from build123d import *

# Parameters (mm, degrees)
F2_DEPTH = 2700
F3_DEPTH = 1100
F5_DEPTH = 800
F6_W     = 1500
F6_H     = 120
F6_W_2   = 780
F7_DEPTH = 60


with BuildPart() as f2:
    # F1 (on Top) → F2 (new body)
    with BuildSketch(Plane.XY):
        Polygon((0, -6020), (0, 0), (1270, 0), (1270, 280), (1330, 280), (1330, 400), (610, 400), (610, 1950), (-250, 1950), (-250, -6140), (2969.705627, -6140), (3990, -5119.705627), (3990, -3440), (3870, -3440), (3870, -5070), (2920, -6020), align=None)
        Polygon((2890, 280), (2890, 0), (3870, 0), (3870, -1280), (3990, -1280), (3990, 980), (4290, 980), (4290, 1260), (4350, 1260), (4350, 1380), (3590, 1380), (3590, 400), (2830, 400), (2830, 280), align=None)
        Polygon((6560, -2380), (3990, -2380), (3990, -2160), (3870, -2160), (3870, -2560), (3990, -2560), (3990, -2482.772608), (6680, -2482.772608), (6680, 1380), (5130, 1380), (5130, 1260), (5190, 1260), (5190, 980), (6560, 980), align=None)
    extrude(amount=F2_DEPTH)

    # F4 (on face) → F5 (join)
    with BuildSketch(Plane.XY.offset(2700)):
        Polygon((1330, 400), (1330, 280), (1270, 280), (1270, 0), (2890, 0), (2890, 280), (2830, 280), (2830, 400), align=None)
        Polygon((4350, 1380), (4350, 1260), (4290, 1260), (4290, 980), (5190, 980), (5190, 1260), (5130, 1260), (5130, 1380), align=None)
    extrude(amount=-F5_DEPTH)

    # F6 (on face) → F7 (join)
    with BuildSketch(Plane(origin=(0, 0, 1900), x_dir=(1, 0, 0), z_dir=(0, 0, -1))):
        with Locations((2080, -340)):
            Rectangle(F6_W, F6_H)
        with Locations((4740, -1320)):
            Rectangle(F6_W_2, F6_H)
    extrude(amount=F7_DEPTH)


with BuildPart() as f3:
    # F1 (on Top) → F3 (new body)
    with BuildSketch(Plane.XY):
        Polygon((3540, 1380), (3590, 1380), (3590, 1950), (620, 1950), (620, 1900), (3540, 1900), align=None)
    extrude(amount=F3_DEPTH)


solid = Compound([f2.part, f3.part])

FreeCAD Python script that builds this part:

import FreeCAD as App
import Part
import Sketcher

V = App.Vector
Q = App.Units.Quantity

doc = App.newDocument("Part")
params = doc.addObject("Spreadsheet::Sheet", "Params")
for row, (alias, value) in enumerate([
    ("sketch1_width", "1270 mm"),
    ("sketch1_width2", "60 mm"),
    ("sketch1_width3", "720 mm"),
    ("sketch1_width4", "860 mm"),
    ("sketch1_width5", "120 mm"),
    ("pad1_length", "2700 mm"),
    ("sketch2_width", "60 mm"),
    ("sketch2_width2", "1620 mm"),
    ("sketch2_width3", "900 mm"),
    ("sketch2_height", "120 mm"),
    ("sketch2_height2", "280 mm"),
    ("pad2_length", "800 mm"),
    ("sketch3_width", "1500 mm"),
    ("sketch3_width2", "780 mm"),
    ("sketch3_height", "120 mm"),
    ("pad3_length", "60 mm"),
    ("sketch4_width", "50 mm"),
    ("sketch4_width2", "2970 mm"),
    ("sketch4_height", "570 mm"),
    ("pad4_length", "1100 mm"),
], start=1):
    params.set(f"A{row}", alias)
    params.set(f"B{row}", "=" + value)
    params.setAlias(f"B{row}", alias)

body = doc.addObject("PartDesign::Body", "Body")
body.AllowCompound = True

# Sketch on XY plane
sketch1 = doc.addObject("Sketcher::SketchObject", "Sketch")
body.addObject(sketch1)
sketch1.AttachmentSupport = (doc.XY_Plane, [""])
sketch1.MapMode = "FlatFace"
sketch1.addGeometry([
    Part.LineSegment(V(0, -6020, 0), V(0, 0, 0)),  # 0
    Part.LineSegment(V(0, 0, 0), V(1270, 0, 0)),  # 1
    Part.LineSegment(V(1270, 0, 0), V(1270, 280, 0)),  # 2
    Part.LineSegment(V(1270, 280, 0), V(1330, 280, 0)),  # 3
    Part.LineSegment(V(1330, 280, 0), V(1330, 400, 0)),  # 4
    Part.LineSegment(V(1330, 400, 0), V(610, 400, 0)),  # 5
    Part.LineSegment(V(610, 400, 0), V(610, 1950, 0)),  # 6
    Part.LineSegment(V(610, 1950, 0), V(-250, 1950, 0)),  # 7
    Part.LineSegment(V(-250, 1950, 0), V(-250, -6140, 0)),  # 8
    Part.LineSegment(V(-250, -6140, 0), V(2969.705627, -6140, 0)),  # 9
    Part.LineSegment(V(2969.705627, -6140, 0), V(3990, -5119.705627, 0)),  # 10
    Part.LineSegment(V(3990, -5119.705627, 0), V(3990, -3440, 0)),  # 11
    Part.LineSegment(V(3990, -3440, 0), V(3870, -3440, 0)),  # 12
    Part.LineSegment(V(3870, -3440, 0), V(3870, -5070, 0)),  # 13
    Part.LineSegment(V(3870, -5070, 0), V(2920, -6020, 0)),  # 14
    Part.LineSegment(V(2920, -6020, 0), V(0, -6020, 0)),  # 15
    Part.LineSegment(V(2890, 280, 0), V(2890, 0, 0)),  # 16
    Part.LineSegment(V(2890, 0, 0), V(3870, 0, 0)),  # 17
    Part.LineSegment(V(3870, 0, 0), V(3870, -1280, 0)),  # 18
    Part.LineSegment(V(3870, -1280, 0), V(3990, -1280, 0)),  # 19
    Part.LineSegment(V(3990, -1280, 0), V(3990, 980, 0)),  # 20
    Part.LineSegment(V(3990, 980, 0), V(4290, 980, 0)),  # 21
    Part.LineSegment(V(4290, 980, 0), V(4290, 1260, 0)),  # 22
    Part.LineSegment(V(4290, 1260, 0), V(4350, 1260, 0)),  # 23
    Part.LineSegment(V(4350, 1260, 0), V(4350, 1380, 0)),  # 24
    Part.LineSegment(V(4350, 1380, 0), V(3590, 1380, 0)),  # 25
    Part.LineSegment(V(3590, 1380, 0), V(3590, 400, 0)),  # 26
    Part.LineSegment(V(3590, 400, 0), V(2830, 400, 0)),  # 27
    Part.LineSegment(V(2830, 400, 0), V(2830, 280, 0)),  # 28
    Part.LineSegment(V(2830, 280, 0), V(2890, 280, 0)),  # 29
    Part.LineSegment(V(6560, -2380, 0), V(3990, -2380, 0)),  # 30
    Part.LineSegment(V(3990, -2380, 0), V(3990, -2160, 0)),  # 31
    Part.LineSegment(V(3990, -2160, 0), V(3870, -2160, 0)),  # 32
    Part.LineSegment(V(3870, -2160, 0), V(3870, -2560, 0)),  # 33
    Part.LineSegment(V(3870, -2560, 0), V(3990, -2560, 0)),  # 34
    Part.LineSegment(V(3990, -2560, 0), V(3990, -2482.772608, 0)),  # 35
    Part.LineSegment(V(3990, -2482.772608, 0), V(6680, -2482.772608, 0)),  # 36
    Part.LineSegment(V(6680, -2482.772608, 0), V(6680, 1380, 0)),  # 37
    Part.LineSegment(V(6680, 1380, 0), V(5130, 1380, 0)),  # 38
    Part.LineSegment(V(5130, 1380, 0), V(5130, 1260, 0)),  # 39
    Part.LineSegment(V(5130, 1260, 0), V(5190, 1260, 0)),  # 40
    Part.LineSegment(V(5190, 1260, 0), V(5190, 980, 0)),  # 41
    Part.LineSegment(V(5190, 980, 0), V(6560, 980, 0)),  # 42
    Part.LineSegment(V(6560, 980, 0), V(6560, -2380, 0)),  # 43
], False)
sketch1.addConstraint([
    Sketcher.Constraint("Coincident", 0, 2, 1, 1),
    Sketcher.Constraint("Coincident", 1, 2, 2, 1),
    Sketcher.Constraint("Coincident", 2, 2, 3, 1),
    Sketcher.Constraint("Coincident", 3, 2, 4, 1),
    Sketcher.Constraint("Coincident", 4, 2, 5, 1),
    Sketcher.Constraint("Coincident", 5, 2, 6, 1),
    Sketcher.Constraint("Coincident", 6, 2, 7, 1),
    Sketcher.Constraint("Coincident", 7, 2, 8, 1),
    Sketcher.Constraint("Coincident", 8, 2, 9, 1),
    Sketcher.Constraint("Coincident", 9, 2, 10, 1),
    Sketcher.Constraint("Coincident", 10, 2, 11, 1),
    Sketcher.Constraint("Coincident", 11, 2, 12, 1),
    Sketcher.Constraint("Coincident", 12, 2, 13, 1),
    Sketcher.Constraint("Coincident", 13, 2, 14, 1),
    Sketcher.Constraint("Coincident", 14, 2, 15, 1),
    Sketcher.Constraint("Coincident", 15, 2, 0, 1),
    Sketcher.Constraint("Coincident", 16, 2, 17, 1),
    Sketcher.Constraint("Coincident", 17, 2, 18, 1),
    Sketcher.Constraint("Coincident", 18, 2, 19, 1),
    Sketcher.Constraint("Coincident", 19, 2, 20, 1),
    Sketcher.Constraint("Coincident", 20, 2, 21, 1),
    Sketcher.Constraint("Coincident", 21, 2, 22, 1),
    Sketcher.Constraint("Coincident", 22, 2, 23, 1),
    Sketcher.Constraint("Coincident", 23, 2, 24, 1),
    Sketcher.Constraint("Coincident", 24, 2, 25, 1),
    Sketcher.Constraint("Coincident", 25, 2, 26, 1),
    Sketcher.Constraint("Coincident", 26, 2, 27, 1),
    Sketcher.Constraint("Coincident", 27, 2, 28, 1),
    Sketcher.Constraint("Coincident", 28, 2, 29, 1),
    Sketcher.Constraint("Coincident", 29, 2, 16, 1),
    Sketcher.Constraint("Coincident", 30, 2, 31, 1),
    Sketcher.Constraint("Coincident", 31, 2, 32, 1),
    Sketcher.Constraint("Coincident", 32, 2, 33, 1),
    Sketcher.Constraint("Coincident", 33, 2, 34, 1),
    Sketcher.Constraint("Coincident", 34, 2, 35, 1),
    Sketcher.Constraint("Coincident", 35, 2, 36, 1),
    Sketcher.Constraint("Coincident", 36, 2, 37, 1),
    Sketcher.Constraint("Coincident", 37, 2, 38, 1),
    Sketcher.Constraint("Coincident", 38, 2, 39, 1),
    Sketcher.Constraint("Coincident", 39, 2, 40, 1),
    Sketcher.Constraint("Coincident", 40, 2, 41, 1),
    Sketcher.Constraint("Coincident", 41, 2, 42, 1),
    Sketcher.Constraint("Coincident", 42, 2, 43, 1),
    Sketcher.Constraint("Coincident", 43, 2, 30, 1),
    Sketcher.Constraint("Vertical", 0),
    Sketcher.Constraint("Horizontal", 1),
    Sketcher.Constraint("Vertical", 2),
    Sketcher.Constraint("Horizontal", 3),
    Sketcher.Constraint("Vertical", 4),
    Sketcher.Constraint("Horizontal", 5),
    Sketcher.Constraint("Vertical", 6),
    Sketcher.Constraint("Horizontal", 7),
    Sketcher.Constraint("Vertical", 8),
    Sketcher.Constraint("Horizontal", 9),
    Sketcher.Constraint("Vertical", 11),
    Sketcher.Constraint("Horizontal", 12),
    Sketcher.Constraint("Vertical", 13),
    Sketcher.Constraint("Horizontal", 15),
    Sketcher.Constraint("Vertical", 16),
    Sketcher.Constraint("Horizontal", 17),
    Sketcher.Constraint("Vertical", 18),
    Sketcher.Constraint("Horizontal", 19),
    Sketcher.Constraint("Vertical", 20),
    Sketcher.Constraint("Horizontal", 21),
    Sketcher.Constraint("Vertical", 22),
    Sketcher.Constraint("Horizontal", 23),
    Sketcher.Constraint("Vertical", 24),
    Sketcher.Constraint("Horizontal", 25),
    Sketcher.Constraint("Vertical", 26),
    Sketcher.Constraint("Horizontal", 27),
    Sketcher.Constraint("Vertical", 28),
    Sketcher.Constraint("Horizontal", 29),
    Sketcher.Constraint("Horizontal", 30),
    Sketcher.Constraint("Vertical", 31),
    Sketcher.Constraint("Horizontal", 32),
    Sketcher.Constraint("Vertical", 33),
    Sketcher.Constraint("Horizontal", 34),
    Sketcher.Constraint("Vertical", 35),
    Sketcher.Constraint("Horizontal", 36),
    Sketcher.Constraint("Vertical", 37),
    Sketcher.Constraint("Horizontal", 38),
    Sketcher.Constraint("Vertical", 39),
    Sketcher.Constraint("Horizontal", 40),
    Sketcher.Constraint("Vertical", 41),
    Sketcher.Constraint("Horizontal", 42),
    Sketcher.Constraint("Vertical", 43),
    Sketcher.Constraint("Coincident", 0, 2, -1, 1),
    Sketcher.Constraint("PointOnObject", 16, 2, -1),
    Sketcher.Constraint("Parallel", 10, 14),
    Sketcher.Constraint("Horizontal", 5, 2, 26, 2),
    Sketcher.Constraint("Horizontal", 3, 2, 28, 2),
    Sketcher.Constraint("Horizontal", 25, 2, 37, 2),
    Sketcher.Constraint("Horizontal", 23, 2, 39, 2),
    Sketcher.Constraint("Horizontal", 21, 2, 41, 2),
    Sketcher.Constraint("Vertical", 13, 2, 17, 2),
    Sketcher.Constraint("Vertical", 11, 2, 19, 2),
    Sketcher.Constraint("Vertical", 20, 2, 30, 2),
    Sketcher.Constraint("Vertical", 18, 2, 32, 2),
    Sketcher.Constraint("Vertical", 31, 2, 34, 2),
    Sketcher.Constraint("Equal", 3, 23),
    Sketcher.Constraint("Equal", 25, 27),
    Sketcher.Constraint("Equal", 23, 29),
    Sketcher.Constraint("Equal", 29, 40),
    Sketcher.Constraint("Equal", 34, 4),
    Sketcher.Constraint("Equal", 38, 6),
    Sketcher.Constraint("Equal", 16, 22),
    Sketcher.Constraint("Equal", 4, 24),
    Sketcher.Constraint("Equal", 17, 26),
    Sketcher.Constraint("DistanceX", 1, 1, 1, 2, Q("1270 mm")),
    Sketcher.Constraint("DistanceX", 3, 1, 3, 2, Q("60 mm")),
    Sketcher.Constraint("DistanceX", 5, 2, 5, 1, Q("720 mm")),
    Sketcher.Constraint("DistanceX", 7, 2, 7, 1, Q("860 mm")),
    Sketcher.Constraint("DistanceX", 12, 2, 12, 1, Q("120 mm")),
    Sketcher.Constraint("DistanceX", 15, 2, 15, 1, Q("2920 mm")),
    Sketcher.Constraint("DistanceX", 17, 1, 17, 2, Q("980 mm")),
    Sketcher.Constraint("DistanceX", 21, 1, 21, 2, Q("300 mm")),
    Sketcher.Constraint("DistanceX", 30, 2, 30, 1, Q("2570 mm")),
    Sketcher.Constraint("DistanceX", 36, 1, 36, 2, Q("2690 mm")),
    Sketcher.Constraint("DistanceX", 38, 2, 38, 1, Q("1550 mm")),
    Sketcher.Constraint("DistanceY", 0, 1, 0, 2, Q("6020 mm")),
    Sketcher.Constraint("DistanceY", 2, 1, 2, 2, Q("280 mm")),
    Sketcher.Constraint("DistanceY", 8, 2, 8, 1, Q("8090 mm")),
    Sketcher.Constraint("DistanceY", 13, 2, 13, 1, Q("1630 mm")),
    Sketcher.Constraint("DistanceY", 18, 2, 18, 1, Q("1280 mm")),
    Sketcher.Constraint("DistanceY", 31, 1, 31, 2, Q("220 mm")),
    Sketcher.Constraint("DistanceY", 33, 2, 33, 1, Q("400 mm")),
    Sketcher.Constraint("DistanceY", 43, 2, 43, 1, Q("3360 mm")),
    Sketcher.Constraint("Angle", 10, Q("45 deg")),
    Sketcher.Constraint("DistanceX", -1, 1, 10, 2, Q("3990 mm")),
    Sketcher.Constraint("DistanceY", 35, 1, 35, 2, Q("77.227392 mm")),
    Sketcher.Constraint("Distance", 10, Q("1442.91414 mm")),
])
sketch1.setExpression("Constraints[108]", "Params.sketch1_width")
sketch1.setExpression("Constraints[109]", "Params.sketch1_width2")
sketch1.setExpression("Constraints[110]", "Params.sketch1_width3")
sketch1.setExpression("Constraints[111]", "Params.sketch1_width4")
sketch1.setExpression("Constraints[112]", "Params.sketch1_width5")
pad1 = doc.addObject("PartDesign::Pad", "Pad")
body.addObject(pad1)
pad1.Profile = sketch1
pad1.setExpression("Length", "Params.pad1_length")

# Sketch on XY plane
sketch2 = doc.addObject("Sketcher::SketchObject", "Sketch001")
body.addObject(sketch2)
sketch2.AttachmentSupport = (doc.XY_Plane, [""])
sketch2.MapMode = "FlatFace"
sketch2.AttachmentOffset = App.Placement(V(0, 0, 2700), App.Rotation())
sketch2.addGeometry([
    Part.LineSegment(V(1330, 400, 0), V(1330, 280, 0)),  # 0
    Part.LineSegment(V(1330, 280, 0), V(1270, 280, 0)),  # 1
    Part.LineSegment(V(1270, 280, 0), V(1270, 0, 0)),  # 2
    Part.LineSegment(V(1270, 0, 0), V(2890, 0, 0)),  # 3
    Part.LineSegment(V(2890, 0, 0), V(2890, 280, 0)),  # 4
    Part.LineSegment(V(2890, 280, 0), V(2830, 280, 0)),  # 5
    Part.LineSegment(V(2830, 280, 0), V(2830, 400, 0)),  # 6
    Part.LineSegment(V(2830, 400, 0), V(1330, 400, 0)),  # 7
    Part.LineSegment(V(4350, 1380, 0), V(4350, 1260, 0)),  # 8
    Part.LineSegment(V(4350, 1260, 0), V(4290, 1260, 0)),  # 9
    Part.LineSegment(V(4290, 1260, 0), V(4290, 980, 0)),  # 10
    Part.LineSegment(V(4290, 980, 0), V(5190, 980, 0)),  # 11
    Part.LineSegment(V(5190, 980, 0), V(5190, 1260, 0)),  # 12
    Part.LineSegment(V(5190, 1260, 0), V(5130, 1260, 0)),  # 13
    Part.LineSegment(V(5130, 1260, 0), V(5130, 1380, 0)),  # 14
    Part.LineSegment(V(5130, 1380, 0), V(4350, 1380, 0)),  # 15
], False)
sketch2.addConstraint([
    Sketcher.Constraint("Coincident", 0, 2, 1, 1),
    Sketcher.Constraint("Coincident", 1, 2, 2, 1),
    Sketcher.Constraint("Coincident", 2, 2, 3, 1),
    Sketcher.Constraint("Coincident", 3, 2, 4, 1),
    Sketcher.Constraint("Coincident", 4, 2, 5, 1),
    Sketcher.Constraint("Coincident", 5, 2, 6, 1),
    Sketcher.Constraint("Coincident", 6, 2, 7, 1),
    Sketcher.Constraint("Coincident", 7, 2, 0, 1),
    Sketcher.Constraint("Coincident", 8, 2, 9, 1),
    Sketcher.Constraint("Coincident", 9, 2, 10, 1),
    Sketcher.Constraint("Coincident", 10, 2, 11, 1),
    Sketcher.Constraint("Coincident", 11, 2, 12, 1),
    Sketcher.Constraint("Coincident", 12, 2, 13, 1),
    Sketcher.Constraint("Coincident", 13, 2, 14, 1),
    Sketcher.Constraint("Coincident", 14, 2, 15, 1),
    Sketcher.Constraint("Coincident", 15, 2, 8, 1),
    Sketcher.Constraint("Vertical", 0),
    Sketcher.Constraint("Horizontal", 1),
    Sketcher.Constraint("Vertical", 2),
    Sketcher.Constraint("Horizontal", 3),
    Sketcher.Constraint("Vertical", 4),
    Sketcher.Constraint("Horizontal", 5),
    Sketcher.Constraint("Vertical", 6),
    Sketcher.Constraint("Horizontal", 7),
    Sketcher.Constraint("Vertical", 8),
    Sketcher.Constraint("Horizontal", 9),
    Sketcher.Constraint("Vertical", 10),
    Sketcher.Constraint("Horizontal", 11),
    Sketcher.Constraint("Vertical", 12),
    Sketcher.Constraint("Horizontal", 13),
    Sketcher.Constraint("Vertical", 14),
    Sketcher.Constraint("Horizontal", 15),
    Sketcher.Constraint("PointOnObject", 2, 2, -1),
    Sketcher.Constraint("Horizontal", 1, 2, 4, 2),
    Sketcher.Constraint("Horizontal", 9, 2, 12, 2),
    Sketcher.Constraint("Equal", 1, 5),
    Sketcher.Constraint("Equal", 5, 9),
    Sketcher.Constraint("Equal", 9, 13),
    Sketcher.Constraint("Equal", 6, 8),
    Sketcher.Constraint("Equal", 4, 10),
    Sketcher.Constraint("DistanceX", 1, 2, 1, 1, Q("60 mm")),
    Sketcher.Constraint("DistanceX", 3, 1, 3, 2, Q("1620 mm")),
    Sketcher.Constraint("DistanceX", 11, 1, 11, 2, Q("900 mm")),
    Sketcher.Constraint("DistanceY", 0, 2, 0, 1, Q("120 mm")),
    Sketcher.Constraint("DistanceY", 2, 2, 2, 1, Q("280 mm")),
    Sketcher.Constraint("DistanceX", -1, 1, 0, 2, Q("1330 mm")),
    Sketcher.Constraint("DistanceX", -1, 1, 8, 2, Q("4350 mm")),
    Sketcher.Constraint("DistanceY", -1, 1, 8, 2, Q("1260 mm")),
])
sketch2.setExpression("Constraints[40]", "Params.sketch2_width")
sketch2.setExpression("Constraints[41]", "Params.sketch2_width2")
sketch2.setExpression("Constraints[42]", "Params.sketch2_width3")
sketch2.setExpression("Constraints[43]", "Params.sketch2_height")
sketch2.setExpression("Constraints[44]", "Params.sketch2_height2")
pad2 = doc.addObject("PartDesign::Pad", "Pad001")
body.addObject(pad2)
pad2.Profile = sketch2
pad2.setExpression("Length", "Params.pad2_length")
pad2.Reversed = True

# Sketch on XY plane
sketch3 = doc.addObject("Sketcher::SketchObject", "Sketch002")
body.addObject(sketch3)
sketch3.AttachmentSupport = (doc.XY_Plane, [""])
sketch3.MapMode = "FlatFace"
sketch3.AttachmentOffset = App.Placement(V(0, 0, 1900), App.Rotation())
sketch3.addGeometry([
    Part.LineSegment(V(1330, 280, 0), V(1330, 400, 0)),  # 0
    Part.LineSegment(V(1330, 400, 0), V(2830, 400, 0)),  # 1
    Part.LineSegment(V(2830, 400, 0), V(2830, 280, 0)),  # 2
    Part.LineSegment(V(2830, 280, 0), V(1330, 280, 0)),  # 3
    Part.LineSegment(V(4350, 1260, 0), V(4350, 1380, 0)),  # 4
    Part.LineSegment(V(4350, 1380, 0), V(5130, 1380, 0)),  # 5
    Part.LineSegment(V(5130, 1380, 0), V(5130, 1260, 0)),  # 6
    Part.LineSegment(V(5130, 1260, 0), V(4350, 1260, 0)),  # 7
], False)
sketch3.addConstraint([
    Sketcher.Constraint("Coincident", 0, 2, 1, 1),
    Sketcher.Constraint("Coincident", 1, 2, 2, 1),
    Sketcher.Constraint("Coincident", 2, 2, 3, 1),
    Sketcher.Constraint("Coincident", 3, 2, 0, 1),
    Sketcher.Constraint("Coincident", 4, 2, 5, 1),
    Sketcher.Constraint("Coincident", 5, 2, 6, 1),
    Sketcher.Constraint("Coincident", 6, 2, 7, 1),
    Sketcher.Constraint("Coincident", 7, 2, 4, 1),
    Sketcher.Constraint("Vertical", 0),
    Sketcher.Constraint("Horizontal", 1),
    Sketcher.Constraint("Vertical", 2),
    Sketcher.Constraint("Horizontal", 3),
    Sketcher.Constraint("Vertical", 4),
    Sketcher.Constraint("Horizontal", 5),
    Sketcher.Constraint("Vertical", 6),
    Sketcher.Constraint("Horizontal", 7),
    Sketcher.Constraint("Equal", 2, 4),
    Sketcher.Constraint("DistanceX", 1, 1, 1, 2, Q("1500 mm")),
    Sketcher.Constraint("DistanceX", 5, 1, 5, 2, Q("780 mm")),
    Sketcher.Constraint("DistanceY", 0, 1, 0, 2, Q("120 mm")),
    Sketcher.Constraint("DistanceX", -1, 1, 0, 2, Q("1330 mm")),
    Sketcher.Constraint("DistanceY", -1, 1, 0, 2, Q("400 mm")),
    Sketcher.Constraint("DistanceX", -1, 1, 4, 2, Q("4350 mm")),
    Sketcher.Constraint("DistanceY", -1, 1, 4, 2, Q("1380 mm")),
])
sketch3.setExpression("Constraints[17]", "Params.sketch3_width")
sketch3.setExpression("Constraints[18]", "Params.sketch3_width2")
sketch3.setExpression("Constraints[19]", "Params.sketch3_height")
pad3 = doc.addObject("PartDesign::Pad", "Pad002")
body.addObject(pad3)
pad3.Profile = sketch3
pad3.setExpression("Length", "Params.pad3_length")
pad3.Reversed = True
body2 = doc.addObject("PartDesign::Body", "Body001")

# Sketch on XY plane
sketch4 = doc.addObject("Sketcher::SketchObject", "Sketch003")
body2.addObject(sketch4)
sketch4.AttachmentSupport = (doc.getObject("XY_Plane001"), [""])
sketch4.MapMode = "FlatFace"
sketch4.addGeometry([
    Part.LineSegment(V(3540, 1380, 0), V(3590, 1380, 0)),  # 0
    Part.LineSegment(V(3590, 1380, 0), V(3590, 1950, 0)),  # 1
    Part.LineSegment(V(3590, 1950, 0), V(620, 1950, 0)),  # 2
    Part.LineSegment(V(620, 1950, 0), V(620, 1900, 0)),  # 3
    Part.LineSegment(V(620, 1900, 0), V(3540, 1900, 0)),  # 4
    Part.LineSegment(V(3540, 1900, 0), V(3540, 1380, 0)),  # 5
], False)
sketch4.addConstraint([
    Sketcher.Constraint("Coincident", 0, 2, 1, 1),
    Sketcher.Constraint("Coincident", 1, 2, 2, 1),
    Sketcher.Constraint("Coincident", 2, 2, 3, 1),
    Sketcher.Constraint("Coincident", 3, 2, 4, 1),
    Sketcher.Constraint("Coincident", 4, 2, 5, 1),
    Sketcher.Constraint("Coincident", 5, 2, 0, 1),
    Sketcher.Constraint("Horizontal", 0),
    Sketcher.Constraint("Vertical", 1),
    Sketcher.Constraint("Horizontal", 2),
    Sketcher.Constraint("Vertical", 3),
    Sketcher.Constraint("Horizontal", 4),
    Sketcher.Constraint("Vertical", 5),
    Sketcher.Constraint("Equal", 0, 3),
    Sketcher.Constraint("DistanceX", 0, 1, 0, 2, Q("50 mm")),
    Sketcher.Constraint("DistanceX", 2, 2, 2, 1, Q("2970 mm")),
    Sketcher.Constraint("DistanceY", 1, 1, 1, 2, Q("570 mm")),
    Sketcher.Constraint("DistanceX", -1, 1, 0, 2, Q("3590 mm")),
    Sketcher.Constraint("DistanceY", -1, 1, 0, 2, Q("1380 mm")),
])
sketch4.setExpression("Constraints[13]", "Params.sketch4_width")
sketch4.setExpression("Constraints[14]", "Params.sketch4_width2")
sketch4.setExpression("Constraints[15]", "Params.sketch4_height")
pad4 = doc.addObject("PartDesign::Pad", "Pad003")
body2.addObject(pad4)
pad4.Profile = sketch4
pad4.setExpression("Length", "Params.pad4_length")

doc.recompute()
